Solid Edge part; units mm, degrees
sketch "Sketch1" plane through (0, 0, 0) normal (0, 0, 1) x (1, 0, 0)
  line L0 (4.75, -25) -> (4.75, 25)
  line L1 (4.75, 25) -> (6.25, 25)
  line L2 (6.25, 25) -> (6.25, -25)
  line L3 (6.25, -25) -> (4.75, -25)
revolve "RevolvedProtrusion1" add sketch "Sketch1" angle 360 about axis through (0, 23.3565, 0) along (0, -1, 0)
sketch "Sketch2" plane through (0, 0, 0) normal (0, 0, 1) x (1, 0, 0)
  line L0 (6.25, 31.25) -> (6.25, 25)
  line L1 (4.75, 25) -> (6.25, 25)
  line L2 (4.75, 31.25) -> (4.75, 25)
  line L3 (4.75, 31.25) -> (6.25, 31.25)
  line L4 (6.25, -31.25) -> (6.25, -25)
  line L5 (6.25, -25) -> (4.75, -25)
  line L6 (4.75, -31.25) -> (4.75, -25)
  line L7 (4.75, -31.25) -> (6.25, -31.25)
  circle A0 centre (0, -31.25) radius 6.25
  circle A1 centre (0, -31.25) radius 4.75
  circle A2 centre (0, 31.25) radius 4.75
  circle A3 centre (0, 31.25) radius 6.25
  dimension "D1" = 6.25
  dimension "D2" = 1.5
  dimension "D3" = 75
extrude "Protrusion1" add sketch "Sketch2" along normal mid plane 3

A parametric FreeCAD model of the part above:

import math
import FreeCAD as App
import Part
import Sketcher

V = App.Vector

doc = App.newDocument("Part")
params = doc.addObject("Spreadsheet::Sheet", "Params")
for row, (alias, value) in enumerate([
    ("sketch1_height", "50 mm"),
    ("sketch1_width", "1.5 mm"),
    ("revolution_angle", "360 deg"),
    ("sketch2_diameter", "9.5 mm"),
    ("sketch2_radius", "6.25 mm"),
    ("sketch2_width", "1.5 mm"),
    ("sketch2_height", "6.25 mm"),
    ("pad1_length", "3 mm"),
], start=1):
    params.set(f"A{row}", alias)
    params.set(f"B{row}", "=" + value)
    params.setAlias(f"B{row}", alias)

body = doc.addObject("PartDesign::Body", "Body")

# Sketch on XY plane
sketch1 = body.newObject("Sketcher::SketchObject", "Sketch")
sketch1.AttachmentSupport = (doc.getObject("XY_Plane"), [""])
sketch1.MapMode = "FlatFace"
sketch1.addGeometry(Part.LineSegment(V(4.75, 25, 0), V(4.75, -25, 0)), False)
sketch1.addGeometry(Part.LineSegment(V(4.75, -25, 0), V(6.25, -25, 0)), False)
sketch1.addGeometry(Part.LineSegment(V(6.25, -25, 0), V(6.25, 25, 0)), False)
sketch1.addGeometry(Part.LineSegment(V(6.25, 25, 0), V(4.75, 25, 0)), False)
sketch1.addConstraint(Sketcher.Constraint("Coincident", 0, 2, 1, 1))
sketch1.addConstraint(Sketcher.Constraint("Coincident", 1, 2, 2, 1))
sketch1.addConstraint(Sketcher.Constraint("Coincident", 2, 2, 3, 1))
sketch1.addConstraint(Sketcher.Constraint("Coincident", 3, 2, 0, 1))
sketch1.addConstraint(Sketcher.Constraint("Vertical", 0))
sketch1.addConstraint(Sketcher.Constraint("Horizontal", 1))
sketch1.addConstraint(Sketcher.Constraint("Vertical", 2))
sketch1.addConstraint(Sketcher.Constraint("Horizontal", 3))
sketch1.addConstraint(Sketcher.Constraint("DistanceY", 0, 2, 0, 1, 50.0))
sketch1.addConstraint(Sketcher.Constraint("DistanceX", 1, 1, 1, 2, 1.5))
sketch1.addConstraint(Sketcher.Constraint("DistanceY", 0, 2, -1, 1, 25.0))
sketch1.addConstraint(Sketcher.Constraint("DistanceX", -1, 1, 0, 2, 4.75))
sketch1.setExpression("Constraints[8]", "Params.sketch1_height")
sketch1.setExpression("Constraints[9]", "Params.sketch1_width")
revolution = body.newObject("PartDesign::Revolution", "Revolution")
revolution.Profile = sketch1
revolution.ReferenceAxis = (sketch1, ["V_Axis"])
revolution.setExpression("Angle", "Params.revolution_angle")

# Sketch on XY plane
sketch2 = body.newObject("Sketcher::SketchObject", "Sketch001")
sketch2.AttachmentSupport = (doc.getObject("XY_Plane"), [""])
sketch2.MapMode = "FlatFace"
sketch2.addGeometry(Part.LineSegment(V(6.25, 25, 0), V(6.25, 31.25, 0)), False)
sketch2.addGeometry(Part.ArcOfCircle(Part.Circle(V(0, 31.25, 0), V(0, 0, 1), 6.25), math.radians(0), math.radians(319.464198)), False)
sketch2.addGeometry(Part.LineSegment(V(4.75, 27.187981, 0), V(4.75, 25, 0)), False)
sketch2.addGeometry(Part.LineSegment(V(4.75, 25, 0), V(6.25, 25, 0)), False)
sketch2.addGeometry(Part.Circle(V(0, 31.25, 0), V(0, 0, 1), 4.75), False)
sketch2.addGeometry(Part.LineSegment(V(4.75, -25, 0), V(4.75, -27.187981, 0)), False)
sketch2.addGeometry(Part.ArcOfCircle(Part.Circle(V(0, -31.25, 0), V(0, 0, 1), 6.25), math.radians(40.535802), math.radians(360)), False)
sketch2.addGeometry(Part.LineSegment(V(6.25, -31.25, 0), V(6.25, -25, 0)), False)
sketch2.addGeometry(Part.LineSegment(V(6.25, -25, 0), V(4.75, -25, 0)), False)
sketch2.addGeometry(Part.Circle(V(0, -31.25, 0), V(0, 0, 1), 4.75), False)
sketch2.addConstraint(Sketcher.Constraint("Tangent", 0, 2, 1, 1))
sketch2.addConstraint(Sketcher.Constraint("Coincident", 1, 2, 2, 1))
sketch2.addConstraint(Sketcher.Constraint("Coincident", 2, 2, 3, 1))
sketch2.addConstraint(Sketcher.Constraint("Coincident", 3, 2, 0, 1))
sketch2.addConstraint(Sketcher.Constraint("Coincident", 5, 2, 6, 1))
sketch2.addConstraint(Sketcher.Constraint("Tangent", 6, 2, 7, 1))
sketch2.addConstraint(Sketcher.Constraint("Coincident", 7, 2, 8, 1))
sketch2.addConstraint(Sketcher.Constraint("Coincident", 8, 2, 5, 1))
sketch2.addConstraint(Sketcher.Constraint("Vertical", 0))
sketch2.addConstraint(Sketcher.Constraint("Vertical", 2))
sketch2.addConstraint(Sketcher.Constraint("Horizontal", 3))
sketch2.addConstraint(Sketcher.Constraint("Vertical", 5))
sketch2.addConstraint(Sketcher.Constraint("Vertical", 7))
sketch2.addConstraint(Sketcher.Constraint("Horizontal", 8))
sketch2.addConstraint(Sketcher.Constraint("Coincident", 4, 3, 1, 3))
sketch2.addConstraint(Sketcher.Constraint("Coincident", 9, 3, 6, 3))
sketch2.addConstraint(Sketcher.Constraint("Equal", 1, 6))
sketch2.addConstraint(Sketcher.Constraint("Equal", 4, 9))
sketch2.addConstraint(Sketcher.Constraint("Symmetric", 1, 3, 6, 3, -1, 1))
sketch2.addConstraint(Sketcher.Constraint("Symmetric", 1, 2, 5, 2, -1))
sketch2.addConstraint(Sketcher.Constraint("Equal", 2, 5))
sketch2.addConstraint(Sketcher.Constraint("Diameter", 4, 9.5))
sketch2.addConstraint(Sketcher.Constraint("Radius", 1, 6.25))
sketch2.addConstraint(Sketcher.Constraint("DistanceX", 3, 1, 3, 2, 1.5))
sketch2.addConstraint(Sketcher.Constraint("DistanceY", -1, 1, 2, 2, 25.0))
sketch2.addConstraint(Sketcher.Constraint("DistanceY", 0, 1, 0, 2, 6.25))
sketch2.setExpression("Constraints[21]", "Params.sketch2_diameter")
sketch2.setExpression("Constraints[22]", "Params.sketch2_radius")
sketch2.setExpression("Constraints[23]", "Params.sketch2_width")
sketch2.setExpression("Constraints[25]", "Params.sketch2_height")
pad1 = body.newObject("PartDesign::Pad", "Pad")
pad1.Profile = sketch2
pad1.setExpression("Length", "Params.pad1_length")
pad1.Midplane = True

doc.recompute()
